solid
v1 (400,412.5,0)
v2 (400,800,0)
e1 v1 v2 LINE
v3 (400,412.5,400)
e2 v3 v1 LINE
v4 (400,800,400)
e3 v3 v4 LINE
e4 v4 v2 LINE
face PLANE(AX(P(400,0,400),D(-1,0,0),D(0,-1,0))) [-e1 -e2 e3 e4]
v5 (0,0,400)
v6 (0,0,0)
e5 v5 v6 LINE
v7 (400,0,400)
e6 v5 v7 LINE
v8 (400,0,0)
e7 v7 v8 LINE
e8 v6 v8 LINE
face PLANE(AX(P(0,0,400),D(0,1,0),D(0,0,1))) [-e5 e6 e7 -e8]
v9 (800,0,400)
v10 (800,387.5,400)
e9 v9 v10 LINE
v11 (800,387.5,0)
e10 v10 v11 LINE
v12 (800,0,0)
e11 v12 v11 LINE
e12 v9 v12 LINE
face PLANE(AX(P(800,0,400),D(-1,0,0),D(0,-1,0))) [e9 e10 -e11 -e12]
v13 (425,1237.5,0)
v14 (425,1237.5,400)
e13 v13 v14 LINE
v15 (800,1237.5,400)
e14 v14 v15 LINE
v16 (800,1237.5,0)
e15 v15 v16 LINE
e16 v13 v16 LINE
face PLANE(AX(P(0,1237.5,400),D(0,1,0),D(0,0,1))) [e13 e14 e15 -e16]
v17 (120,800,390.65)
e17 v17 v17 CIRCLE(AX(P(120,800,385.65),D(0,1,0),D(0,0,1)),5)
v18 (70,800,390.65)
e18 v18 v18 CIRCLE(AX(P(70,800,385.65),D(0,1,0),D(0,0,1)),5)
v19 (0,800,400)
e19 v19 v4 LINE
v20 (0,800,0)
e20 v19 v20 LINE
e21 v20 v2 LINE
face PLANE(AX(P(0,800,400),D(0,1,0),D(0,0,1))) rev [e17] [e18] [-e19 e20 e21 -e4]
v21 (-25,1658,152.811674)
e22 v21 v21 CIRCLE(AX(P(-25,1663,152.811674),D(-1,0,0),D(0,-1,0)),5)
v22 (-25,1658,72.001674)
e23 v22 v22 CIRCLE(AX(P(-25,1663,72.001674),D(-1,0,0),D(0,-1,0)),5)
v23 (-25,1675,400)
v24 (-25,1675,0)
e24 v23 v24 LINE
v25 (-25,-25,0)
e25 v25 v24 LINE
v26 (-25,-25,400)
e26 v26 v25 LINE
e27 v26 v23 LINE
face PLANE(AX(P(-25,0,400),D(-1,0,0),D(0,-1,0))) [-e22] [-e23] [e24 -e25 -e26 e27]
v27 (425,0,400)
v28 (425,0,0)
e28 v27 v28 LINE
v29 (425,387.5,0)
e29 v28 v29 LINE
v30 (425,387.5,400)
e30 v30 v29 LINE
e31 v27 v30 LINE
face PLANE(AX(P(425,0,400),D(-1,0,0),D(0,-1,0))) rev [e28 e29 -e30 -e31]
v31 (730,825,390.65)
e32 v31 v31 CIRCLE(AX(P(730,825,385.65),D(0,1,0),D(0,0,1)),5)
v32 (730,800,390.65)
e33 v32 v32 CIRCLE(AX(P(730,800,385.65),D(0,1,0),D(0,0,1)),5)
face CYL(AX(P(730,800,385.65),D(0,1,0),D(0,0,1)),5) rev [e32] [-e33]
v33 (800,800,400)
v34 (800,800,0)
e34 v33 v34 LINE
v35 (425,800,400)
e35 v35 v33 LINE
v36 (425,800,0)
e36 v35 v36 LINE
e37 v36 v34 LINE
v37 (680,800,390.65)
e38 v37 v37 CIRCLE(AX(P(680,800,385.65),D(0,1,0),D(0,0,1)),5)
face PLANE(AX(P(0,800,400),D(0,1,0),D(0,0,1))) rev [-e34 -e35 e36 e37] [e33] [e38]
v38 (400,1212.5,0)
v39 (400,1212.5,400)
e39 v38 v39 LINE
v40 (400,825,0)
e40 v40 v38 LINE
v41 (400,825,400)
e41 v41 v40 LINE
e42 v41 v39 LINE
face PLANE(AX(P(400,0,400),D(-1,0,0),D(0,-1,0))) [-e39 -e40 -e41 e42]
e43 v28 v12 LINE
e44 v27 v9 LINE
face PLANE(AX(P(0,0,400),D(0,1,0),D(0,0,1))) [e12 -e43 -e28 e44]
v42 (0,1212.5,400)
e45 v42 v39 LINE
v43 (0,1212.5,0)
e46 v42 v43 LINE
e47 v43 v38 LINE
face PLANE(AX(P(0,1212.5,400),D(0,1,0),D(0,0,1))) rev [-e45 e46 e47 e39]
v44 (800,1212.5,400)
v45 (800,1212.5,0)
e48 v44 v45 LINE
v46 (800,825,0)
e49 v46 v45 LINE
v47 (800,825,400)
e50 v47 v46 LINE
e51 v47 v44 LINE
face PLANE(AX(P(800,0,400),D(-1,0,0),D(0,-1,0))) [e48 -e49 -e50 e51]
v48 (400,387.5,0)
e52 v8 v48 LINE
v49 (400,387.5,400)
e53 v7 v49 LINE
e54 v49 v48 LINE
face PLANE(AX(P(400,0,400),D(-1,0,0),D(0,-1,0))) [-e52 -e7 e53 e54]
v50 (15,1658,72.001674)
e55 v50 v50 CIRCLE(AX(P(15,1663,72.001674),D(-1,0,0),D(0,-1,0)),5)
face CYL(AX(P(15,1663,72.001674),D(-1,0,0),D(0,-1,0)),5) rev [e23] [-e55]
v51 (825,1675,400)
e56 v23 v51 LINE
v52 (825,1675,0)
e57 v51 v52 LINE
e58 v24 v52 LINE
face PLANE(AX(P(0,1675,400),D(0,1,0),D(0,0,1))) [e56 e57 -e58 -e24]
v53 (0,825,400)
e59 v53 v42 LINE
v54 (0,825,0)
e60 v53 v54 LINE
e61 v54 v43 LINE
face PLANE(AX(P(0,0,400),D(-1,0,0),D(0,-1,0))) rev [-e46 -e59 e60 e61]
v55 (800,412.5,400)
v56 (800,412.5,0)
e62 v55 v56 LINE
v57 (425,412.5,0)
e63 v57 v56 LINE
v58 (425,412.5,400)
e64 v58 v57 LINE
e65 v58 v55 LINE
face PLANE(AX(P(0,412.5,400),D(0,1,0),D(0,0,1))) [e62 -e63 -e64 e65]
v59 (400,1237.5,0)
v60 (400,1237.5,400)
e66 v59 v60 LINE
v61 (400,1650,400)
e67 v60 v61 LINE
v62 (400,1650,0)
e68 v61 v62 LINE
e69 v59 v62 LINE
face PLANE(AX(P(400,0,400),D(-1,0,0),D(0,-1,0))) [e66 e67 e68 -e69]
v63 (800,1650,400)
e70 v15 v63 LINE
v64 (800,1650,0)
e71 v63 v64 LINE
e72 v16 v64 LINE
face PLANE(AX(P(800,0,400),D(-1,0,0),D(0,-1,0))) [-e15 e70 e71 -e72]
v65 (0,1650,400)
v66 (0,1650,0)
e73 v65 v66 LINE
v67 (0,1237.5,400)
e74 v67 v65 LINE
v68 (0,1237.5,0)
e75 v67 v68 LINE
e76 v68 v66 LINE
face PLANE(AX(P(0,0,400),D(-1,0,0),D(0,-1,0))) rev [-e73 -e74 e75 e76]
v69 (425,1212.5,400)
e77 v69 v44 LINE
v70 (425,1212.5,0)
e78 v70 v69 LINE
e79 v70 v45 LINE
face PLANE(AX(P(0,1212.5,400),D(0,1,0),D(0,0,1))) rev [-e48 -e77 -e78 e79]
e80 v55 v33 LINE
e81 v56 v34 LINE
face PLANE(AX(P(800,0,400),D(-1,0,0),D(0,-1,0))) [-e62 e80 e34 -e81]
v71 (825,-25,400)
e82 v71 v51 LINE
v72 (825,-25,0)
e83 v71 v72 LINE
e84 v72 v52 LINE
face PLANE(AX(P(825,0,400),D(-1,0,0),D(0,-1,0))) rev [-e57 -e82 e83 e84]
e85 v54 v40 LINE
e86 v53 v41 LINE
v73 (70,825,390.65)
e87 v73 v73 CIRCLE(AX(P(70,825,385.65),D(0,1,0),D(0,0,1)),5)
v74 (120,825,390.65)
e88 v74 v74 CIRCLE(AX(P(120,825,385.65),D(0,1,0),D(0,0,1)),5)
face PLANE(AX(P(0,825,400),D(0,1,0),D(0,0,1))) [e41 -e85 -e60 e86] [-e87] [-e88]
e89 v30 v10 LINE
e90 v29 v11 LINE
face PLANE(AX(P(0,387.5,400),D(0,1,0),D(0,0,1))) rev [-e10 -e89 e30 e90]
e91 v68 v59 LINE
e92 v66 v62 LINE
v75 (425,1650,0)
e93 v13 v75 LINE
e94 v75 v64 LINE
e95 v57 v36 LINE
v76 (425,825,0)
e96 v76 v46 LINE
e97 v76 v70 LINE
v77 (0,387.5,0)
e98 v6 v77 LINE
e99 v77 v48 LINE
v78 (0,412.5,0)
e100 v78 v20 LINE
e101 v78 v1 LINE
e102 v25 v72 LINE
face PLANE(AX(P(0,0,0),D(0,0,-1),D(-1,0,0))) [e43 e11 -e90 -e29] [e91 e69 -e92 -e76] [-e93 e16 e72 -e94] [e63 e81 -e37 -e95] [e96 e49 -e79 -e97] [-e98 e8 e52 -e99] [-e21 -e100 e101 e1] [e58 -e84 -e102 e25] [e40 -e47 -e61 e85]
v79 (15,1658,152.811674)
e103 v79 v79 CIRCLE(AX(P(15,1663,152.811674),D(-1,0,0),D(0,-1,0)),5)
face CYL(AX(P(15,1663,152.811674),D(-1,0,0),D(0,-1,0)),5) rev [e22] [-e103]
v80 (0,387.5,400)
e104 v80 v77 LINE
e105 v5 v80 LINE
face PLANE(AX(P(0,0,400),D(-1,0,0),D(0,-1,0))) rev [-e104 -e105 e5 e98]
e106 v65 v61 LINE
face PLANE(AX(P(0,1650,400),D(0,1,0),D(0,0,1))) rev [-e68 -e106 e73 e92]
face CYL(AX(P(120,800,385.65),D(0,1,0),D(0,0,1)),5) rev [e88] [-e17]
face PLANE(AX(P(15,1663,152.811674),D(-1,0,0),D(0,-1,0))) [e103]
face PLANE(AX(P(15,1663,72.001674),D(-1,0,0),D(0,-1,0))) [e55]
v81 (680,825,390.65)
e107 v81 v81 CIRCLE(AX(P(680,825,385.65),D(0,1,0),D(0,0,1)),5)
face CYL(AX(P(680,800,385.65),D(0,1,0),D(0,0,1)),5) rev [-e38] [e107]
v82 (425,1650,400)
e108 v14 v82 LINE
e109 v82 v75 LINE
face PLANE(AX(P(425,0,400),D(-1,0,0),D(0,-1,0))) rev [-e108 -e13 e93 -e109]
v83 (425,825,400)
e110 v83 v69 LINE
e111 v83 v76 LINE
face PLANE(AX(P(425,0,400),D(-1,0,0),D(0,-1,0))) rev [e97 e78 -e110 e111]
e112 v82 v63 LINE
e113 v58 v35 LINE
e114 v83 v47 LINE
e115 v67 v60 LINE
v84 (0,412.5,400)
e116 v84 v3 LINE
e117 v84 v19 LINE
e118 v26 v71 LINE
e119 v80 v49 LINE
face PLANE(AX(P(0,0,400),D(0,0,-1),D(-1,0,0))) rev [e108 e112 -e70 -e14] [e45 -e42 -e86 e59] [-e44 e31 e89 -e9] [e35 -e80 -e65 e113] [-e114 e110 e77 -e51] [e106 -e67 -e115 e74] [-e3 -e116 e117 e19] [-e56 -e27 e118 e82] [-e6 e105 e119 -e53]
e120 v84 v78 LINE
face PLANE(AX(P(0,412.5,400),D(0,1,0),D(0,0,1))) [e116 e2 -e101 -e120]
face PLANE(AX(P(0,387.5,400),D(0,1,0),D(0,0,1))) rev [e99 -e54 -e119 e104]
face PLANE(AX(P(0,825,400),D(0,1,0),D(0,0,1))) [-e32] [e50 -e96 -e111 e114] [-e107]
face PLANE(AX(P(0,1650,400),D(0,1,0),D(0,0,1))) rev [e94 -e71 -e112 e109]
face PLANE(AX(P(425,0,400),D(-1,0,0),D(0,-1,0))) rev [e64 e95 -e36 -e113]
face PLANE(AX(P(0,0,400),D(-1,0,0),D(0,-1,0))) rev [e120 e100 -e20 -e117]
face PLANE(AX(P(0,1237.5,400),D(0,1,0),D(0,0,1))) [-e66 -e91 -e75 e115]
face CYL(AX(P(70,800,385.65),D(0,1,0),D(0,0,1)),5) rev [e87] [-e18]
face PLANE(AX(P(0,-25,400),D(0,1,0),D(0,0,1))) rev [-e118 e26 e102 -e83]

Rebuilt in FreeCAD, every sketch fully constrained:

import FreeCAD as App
import Part
import Sketcher
from FreeCAD import Vector

doc = App.newDocument("Part")
body = doc.addObject("PartDesign::Body", "Body")

# Sketch on XY plane
sketch1 = doc.addObject("Sketcher::SketchObject", "Sketch")
body.addObject(sketch1)
sketch1.AttachmentSupport = (doc.XY_Plane, [""])
sketch1.MapMode = "FlatFace"
sketch1.addGeometry([
    Part.LineSegment(Vector(-25, 1675, 0), Vector(-25, -25, 0)),  # 0
    Part.LineSegment(Vector(-25, -25, 0), Vector(825, -25, 0)),  # 1
    Part.LineSegment(Vector(825, -25, 0), Vector(825, 1675, 0)),  # 2
    Part.LineSegment(Vector(825, 1675, 0), Vector(-25, 1675, 0)),  # 3
    Part.LineSegment(Vector(400, 0, 0), Vector(0, 0, 0)),  # 4
    Part.LineSegment(Vector(0, 0, 0), Vector(0, 388, 0)),  # 5
    Part.LineSegment(Vector(0, 388, 0), Vector(400, 388, 0)),  # 6
    Part.LineSegment(Vector(400, 388, 0), Vector(400, 0, 0)),  # 7
    Part.LineSegment(Vector(800, 0, 0), Vector(425, 0, 0)),  # 8
    Part.LineSegment(Vector(425, 0, 0), Vector(425, 388, 0)),  # 9
    Part.LineSegment(Vector(425, 388, 0), Vector(800, 388, 0)),  # 10
    Part.LineSegment(Vector(800, 388, 0), Vector(800, 0, 0)),  # 11
    Part.LineSegment(Vector(800, 800, 0), Vector(800, 412, 0)),  # 12
    Part.LineSegment(Vector(800, 412, 0), Vector(425, 412, 0)),  # 13
    Part.LineSegment(Vector(425, 412, 0), Vector(425, 800, 0)),  # 14
    Part.LineSegment(Vector(425, 800, 0), Vector(800, 800, 0)),  # 15
    Part.LineSegment(Vector(800, 1212, 0), Vector(800, 825, 0)),  # 16
    Part.LineSegment(Vector(800, 825, 0), Vector(425, 825, 0)),  # 17
    Part.LineSegment(Vector(425, 825, 0), Vector(425, 1212, 0)),  # 18
    Part.LineSegment(Vector(425, 1212, 0), Vector(800, 1212, 0)),  # 19
    Part.LineSegment(Vector(800, 1650, 0), Vector(800, 1238, 0)),  # 20
    Part.LineSegment(Vector(800, 1238, 0), Vector(425, 1238, 0)),  # 21
    Part.LineSegment(Vector(425, 1238, 0), Vector(425, 1650, 0)),  # 22
    Part.LineSegment(Vector(425, 1650, 0), Vector(800, 1650, 0)),  # 23
    Part.LineSegment(Vector(0, 1650, 0), Vector(400, 1650, 0)),  # 24
    Part.LineSegment(Vector(400, 1650, 0), Vector(400, 1238, 0)),  # 25
    Part.LineSegment(Vector(400, 1238, 0), Vector(0, 1238, 0)),  # 26
    Part.LineSegment(Vector(0, 1238, 0), Vector(0, 1650, 0)),  # 27
    Part.LineSegment(Vector(0, 412, 0), Vector(0, 800, 0)),  # 28
    Part.LineSegment(Vector(0, 800, 0), Vector(400, 800, 0)),  # 29
    Part.LineSegment(Vector(400, 800, 0), Vector(400, 412, 0)),  # 30
    Part.LineSegment(Vector(400, 412, 0), Vector(0, 412, 0)),  # 31
    Part.LineSegment(Vector(0, 825, 0), Vector(0, 1212, 0)),  # 32
    Part.LineSegment(Vector(0, 1212, 0), Vector(400, 1212, 0)),  # 33
    Part.LineSegment(Vector(400, 1212, 0), Vector(400, 825, 0)),  # 34
    Part.LineSegment(Vector(400, 825, 0), Vector(0, 825, 0)),  # 35
], False)
sketch1.addConstraint([
    Sketcher.Constraint("Coincident", 0, 2, 1, 1),
    Sketcher.Constraint("Coincident", 1, 2, 2, 1),
    Sketcher.Constraint("Coincident", 2, 2, 3, 1),
    Sketcher.Constraint("Coincident", 3, 2, 0, 1),
    Sketcher.Constraint("Coincident", 4, 2, 5, 1),
    Sketcher.Constraint("Coincident", 5, 2, 6, 1),
    Sketcher.Constraint("Coincident", 6, 2, 7, 1),
    Sketcher.Constraint("Coincident", 7, 2, 4, 1),
    Sketcher.Constraint("Coincident", 8, 2, 9, 1),
    Sketcher.Constraint("Coincident", 9, 2, 10, 1),
    Sketcher.Constraint("Coincident", 10, 2, 11, 1),
    Sketcher.Constraint("Coincident", 11, 2, 8, 1),
    Sketcher.Constraint("Coincident", 12, 2, 13, 1),
    Sketcher.Constraint("Coincident", 13, 2, 14, 1),
    Sketcher.Constraint("Coincident", 14, 2, 15, 1),
    Sketcher.Constraint("Coincident", 15, 2, 12, 1),
    Sketcher.Constraint("Coincident", 16, 2, 17, 1),
    Sketcher.Constraint("Coincident", 17, 2, 18, 1),
    Sketcher.Constraint("Coincident", 18, 2, 19, 1),
    Sketcher.Constraint("Coincident", 19, 2, 16, 1),
    Sketcher.Constraint("Coincident", 20, 2, 21, 1),
    Sketcher.Constraint("Coincident", 21, 2, 22, 1),
    Sketcher.Constraint("Coincident", 22, 2, 23, 1),
    Sketcher.Constraint("Coincident", 23, 2, 20, 1),
    Sketcher.Constraint("Coincident", 24, 2, 25, 1),
    Sketcher.Constraint("Coincident", 25, 2, 26, 1),
    Sketcher.Constraint("Coincident", 26, 2, 27, 1),
    Sketcher.Constraint("Coincident", 27, 2, 24, 1),
    Sketcher.Constraint("Coincident", 28, 2, 29, 1),
    Sketcher.Constraint("Coincident", 29, 2, 30, 1),
    Sketcher.Constraint("Coincident", 30, 2, 31, 1),
    Sketcher.Constraint("Coincident", 31, 2, 28, 1),
    Sketcher.Constraint("Coincident", 32, 2, 33, 1),
    Sketcher.Constraint("Coincident", 33, 2, 34, 1),
    Sketcher.Constraint("Coincident", 34, 2, 35, 1),
    Sketcher.Constraint("Coincident", 35, 2, 32, 1),
    Sketcher.Constraint("Vertical", 0),
    Sketcher.Constraint("Horizontal", 1),
    Sketcher.Constraint("Vertical", 2),
    Sketcher.Constraint("Horizontal", 3),
    Sketcher.Constraint("Horizontal", 4),
    Sketcher.Constraint("Vertical", 5),
    Sketcher.Constraint("Horizontal", 6),
    Sketcher.Constraint("Vertical", 7),
    Sketcher.Constraint("Horizontal", 8),
    Sketcher.Constraint("Vertical", 9),
    Sketcher.Constraint("Horizontal", 10),
    Sketcher.Constraint("Vertical", 11),
    Sketcher.Constraint("Vertical", 12),
    Sketcher.Constraint("Horizontal", 13),
    Sketcher.Constraint("Vertical", 14),
    Sketcher.Constraint("Horizontal", 15),
    Sketcher.Constraint("Vertical", 16),
    Sketcher.Constraint("Horizontal", 17),
    Sketcher.Constraint("Vertical", 18),
    Sketcher.Constraint("Horizontal", 19),
    Sketcher.Constraint("Vertical", 20),
    Sketcher.Constraint("Horizontal", 21),
    Sketcher.Constraint("Vertical", 22),
    Sketcher.Constraint("Horizontal", 23),
    Sketcher.Constraint("Horizontal", 24),
    Sketcher.Constraint("Vertical", 25),
    Sketcher.Constraint("Horizontal", 26),
    Sketcher.Constraint("Vertical", 27),
    Sketcher.Constraint("Vertical", 28),
    Sketcher.Constraint("Horizontal", 29),
    Sketcher.Constraint("Vertical", 30),
    Sketcher.Constraint("Horizontal", 31),
    Sketcher.Constraint("Vertical", 32),
    Sketcher.Constraint("Horizontal", 33),
    Sketcher.Constraint("Vertical", 34),
    Sketcher.Constraint("Horizontal", 35),
    Sketcher.Constraint("Coincident", 4, 2, -1, 1),
    Sketcher.Constraint("PointOnObject", 8, 2, -1),
    Sketcher.Constraint("PointOnObject", 26, 2, -2),
    Sketcher.Constraint("PointOnObject", 28, 2, -2),
    Sketcher.Constraint("PointOnObject", 32, 2, -2),
    Sketcher.Constraint("Horizontal", 6, 2, 9, 2),
    Sketcher.Constraint("Horizontal", 23, 2, 24, 2),
    Sketcher.Constraint("Horizontal", 21, 2, 25, 2),
    Sketcher.Constraint("Horizontal", 15, 2, 28, 2),
    Sketcher.Constraint("Horizontal", 13, 2, 30, 2),
    Sketcher.Constraint("Horizontal", 19, 2, 32, 2),
    Sketcher.Constraint("Horizontal", 17, 2, 34, 2),
    Sketcher.Constraint("Vertical", 11, 2, 12, 2),
    Sketcher.Constraint("Vertical", 9, 2, 13, 2),
    Sketcher.Constraint("Vertical", 15, 2, 16, 2),
    Sketcher.Constraint("Vertical", 14, 2, 17, 2),
    Sketcher.Constraint("Vertical", 19, 2, 20, 2),
    Sketcher.Constraint("Vertical", 18, 2, 21, 2),
    Sketcher.Constraint("Vertical", 7, 2, 24, 2),
    Sketcher.Constraint("Vertical", 25, 2, 29, 2),
    Sketcher.Constraint("Vertical", 30, 2, 33, 2),
    Sketcher.Constraint("Equal", 11, 12),
    Sketcher.Constraint("Equal", 14, 16),
    Sketcher.Constraint("DistanceX", 1, 1, 1, 2, 850.0),
    Sketcher.Constraint("DistanceX", 4, 2, 4, 1, 400.0),
    Sketcher.Constraint("DistanceX", 8, 2, 8, 1, 375.0),
    Sketcher.Constraint("DistanceY", 0, 2, 0, 1, 1700.0),
    Sketcher.Constraint("DistanceY", 5, 1, 5, 2, 387.5),
    Sketcher.Constraint("DistanceY", 20, 2, 20, 1, 412.5),
    Sketcher.Constraint("DistanceX", 0, 2, -1, 1, 25.0),
    Sketcher.Constraint("DistanceY", 0, 2, -1, 1, 25.0),
    Sketcher.Constraint("DistanceX", -1, 1, 8, 2, 425.0),
    Sketcher.Constraint("DistanceY", -1, 1, 14, 2, 800.0),
    Sketcher.Constraint("DistanceY", -1, 1, 16, 2, 825.0),
    Sketcher.Constraint("DistanceY", -1, 1, 22, 2, 1650.0),
])
pad1 = doc.addObject("PartDesign::Pad", "Pad")
body.addObject(pad1)
pad1.Profile = sketch1
pad1.Length = 400

# Sketch on XZ plane
sketch2 = doc.addObject("Sketcher::SketchObject", "Sketch001")
body.addObject(sketch2)
sketch2.AttachmentSupport = (doc.XZ_Plane, [""])
sketch2.MapMode = "FlatFace"
sketch2.AttachmentOffset = App.Placement(Vector(0, 0, -825), App.Rotation())
sketch2.addGeometry([
    Part.Circle(Vector(70, 386, 0), Vector(0, 0, 1), 5),
    Part.Circle(Vector(120, 386, 0), Vector(0, 0, 1), 5),
], False)
sketch2.addConstraint([
    Sketcher.Constraint("Equal", 0, 1),
    Sketcher.Constraint("Horizontal", 0, 3, 1, 3),
    Sketcher.Constraint("Diameter", 0, 10.0),
    Sketcher.Constraint("DistanceX", -1, 1, 0, 3, 70.0),
    Sketcher.Constraint("DistanceX", -1, 1, 1, 3, 120.0),
    Sketcher.Constraint("DistanceY", -1, 1, 0, 3, 385.65),
])
pocket1 = doc.addObject("PartDesign::Pocket", "Pocket")
body.addObject(pocket1)
pocket1.Profile = sketch2
pocket1.Length = 25
pocket1.Reversed = True

# Sketch on XZ plane
sketch3 = doc.addObject("Sketcher::SketchObject", "Sketch002")
body.addObject(sketch3)
sketch3.AttachmentSupport = (doc.XZ_Plane, [""])
sketch3.MapMode = "FlatFace"
sketch3.AttachmentOffset = App.Placement(Vector(0, 0, -825), App.Rotation())
sketch3.addGeometry([
    Part.Circle(Vector(730, 386, 0), Vector(0, 0, 1), 5),
    Part.Circle(Vector(680, 386, 0), Vector(0, 0, 1), 5),
], False)
sketch3.addConstraint([
    Sketcher.Constraint("Equal", 0, 1),
    Sketcher.Constraint("Horizontal", 0, 3, 1, 3),
    Sketcher.Constraint("Diameter", 0, 10.0),
    Sketcher.Constraint("DistanceX", -1, 1, 0, 3, 730.0),
    Sketcher.Constraint("DistanceX", -1, 1, 1, 3, 680.0),
    Sketcher.Constraint("DistanceY", -1, 1, 0, 3, 385.65),
])
pocket2 = doc.addObject("PartDesign::Pocket", "Pocket001")
body.addObject(pocket2)
pocket2.Profile = sketch3
pocket2.Length = 25
pocket2.Reversed = True

# Sketch on YZ plane
sketch4 = doc.addObject("Sketcher::SketchObject", "Sketch003")
body.addObject(sketch4)
sketch4.AttachmentSupport = (doc.YZ_Plane, [""])
sketch4.MapMode = "FlatFace"
sketch4.AttachmentOffset = App.Placement(Vector(0, 0, -25), App.Rotation())
sketch4.addGeometry([
    Part.Circle(Vector(1663, 72, 0), Vector(0, 0, 1), 5),
    Part.Circle(Vector(1663, 153, 0), Vector(0, 0, 1), 5),
], False)
sketch4.addConstraint([
    Sketcher.Constraint("Equal", 0, 1),
    Sketcher.Constraint("Vertical", 0, 3, 1, 3),
    Sketcher.Constraint("Diameter", 0, 10.0),
    Sketcher.Constraint("DistanceX", -1, 1, 0, 3, 1663.0),
    Sketcher.Constraint("DistanceY", 0, 3, 1, 3, 80.81),
    Sketcher.Constraint("DistanceY", -1, 1, 0, 3, 72.001674),
])
pocket3 = doc.addObject("PartDesign::Pocket", "Pocket002")
body.addObject(pocket3)
pocket3.Profile = sketch4
pocket3.Length = 40
pocket3.Reversed = True

doc.recompute()
